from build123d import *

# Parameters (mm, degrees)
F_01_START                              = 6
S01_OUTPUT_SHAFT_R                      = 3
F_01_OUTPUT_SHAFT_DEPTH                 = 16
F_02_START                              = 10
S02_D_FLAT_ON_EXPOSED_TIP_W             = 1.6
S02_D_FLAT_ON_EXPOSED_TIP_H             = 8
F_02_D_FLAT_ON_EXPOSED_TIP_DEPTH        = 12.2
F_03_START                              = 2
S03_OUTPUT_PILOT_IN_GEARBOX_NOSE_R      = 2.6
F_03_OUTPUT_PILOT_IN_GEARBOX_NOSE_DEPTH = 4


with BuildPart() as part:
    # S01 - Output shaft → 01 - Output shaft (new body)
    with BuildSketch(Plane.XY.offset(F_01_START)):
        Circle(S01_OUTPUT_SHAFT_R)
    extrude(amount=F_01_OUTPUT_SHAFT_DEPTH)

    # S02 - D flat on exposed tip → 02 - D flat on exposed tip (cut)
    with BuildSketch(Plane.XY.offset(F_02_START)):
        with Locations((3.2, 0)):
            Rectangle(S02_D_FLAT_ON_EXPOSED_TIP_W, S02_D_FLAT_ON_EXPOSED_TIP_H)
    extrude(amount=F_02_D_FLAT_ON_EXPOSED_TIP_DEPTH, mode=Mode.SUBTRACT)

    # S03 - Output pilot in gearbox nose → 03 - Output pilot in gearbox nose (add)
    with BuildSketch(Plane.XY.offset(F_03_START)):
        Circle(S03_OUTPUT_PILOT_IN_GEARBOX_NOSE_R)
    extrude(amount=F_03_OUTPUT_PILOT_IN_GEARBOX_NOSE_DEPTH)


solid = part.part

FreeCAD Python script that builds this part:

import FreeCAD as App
import Part
import Sketcher
Q = App.Units.Quantity

doc = App.newDocument("Part")
body = doc.addObject("PartDesign::Body", "Body")

sketch1 = body.newObject("Sketcher::SketchObject", "Sketch")
sketch1.AttachmentSupport = (doc.getObject("XY_Plane"), [""])
sketch1.MapMode = "FlatFace"
sketch1.AttachmentOffset = App.Placement(App.Vector(0, 0, 6), App.Rotation())
sketch1.addGeometry(Part.Circle(App.Vector(0, 0, 0), App.Vector(0, 0, 1), 3), False)
sketch1.addConstraint(Sketcher.Constraint("Coincident", 0, 3, -1, 1))
sketch1.addConstraint(Sketcher.Constraint("Diameter", 0, Q("6 mm")))
pad1 = body.newObject("PartDesign::Pad", "Pad")
pad1.Profile = sketch1
pad1.Length = 16

sketch2 = body.newObject("Sketcher::SketchObject", "Sketch001")
sketch2.AttachmentSupport = (doc.getObject("XY_Plane"), [""])
sketch2.MapMode = "FlatFace"
sketch2.AttachmentOffset = App.Placement(App.Vector(0, 0, 10), App.Rotation())
sketch2.addGeometry(Part.LineSegment(App.Vector(2.4, 4, 0), App.Vector(2.4, -4, 0)), False)
sketch2.addGeometry(Part.LineSegment(App.Vector(2.4, -4, 0), App.Vector(4, -4, 0)), False)
sketch2.addGeometry(Part.LineSegment(App.Vector(4, -4, 0), App.Vector(4, 4, 0)), False)
sketch2.addGeometry(Part.LineSegment(App.Vector(4, 4, 0), App.Vector(2.4, 4, 0)), False)
sketch2.addConstraint(Sketcher.Constraint("Coincident", 0, 2, 1, 1))
sketch2.addConstraint(Sketcher.Constraint("Coincident", 1, 2, 2, 1))
sketch2.addConstraint(Sketcher.Constraint("Coincident", 2, 2, 3, 1))
sketch2.addConstraint(Sketcher.Constraint("Coincident", 3, 2, 0, 1))
sketch2.addConstraint(Sketcher.Constraint("Vertical", 0))
sketch2.addConstraint(Sketcher.Constraint("Horizontal", 1))
sketch2.addConstraint(Sketcher.Constraint("Vertical", 2))
sketch2.addConstraint(Sketcher.Constraint("Horizontal", 3))
sketch2.addConstraint(Sketcher.Constraint("DistanceY", 0, 2, 0, 1, Q("8 mm")))
sketch2.addConstraint(Sketcher.Constraint("DistanceX", 1, 1, 1, 2, Q("1.6 mm")))
sketch2.addConstraint(Sketcher.Constraint("DistanceY", 0, 2, -1, 1, Q("4 mm")))
sketch2.addConstraint(Sketcher.Constraint("DistanceX", -1, 1, 1, 2, Q("4 mm")))
pocket1 = body.newObject("PartDesign::Pocket", "Pocket")
pocket1.Profile = sketch2
pocket1.Length = 12.2
pocket1.Reversed = True

sketch3 = body.newObject("Sketcher::SketchObject", "Sketch002")
sketch3.AttachmentSupport = (doc.getObject("XY_Plane"), [""])
sketch3.MapMode = "FlatFace"
sketch3.AttachmentOffset = App.Placement(App.Vector(0, 0, 2), App.Rotation())
sketch3.addGeometry(Part.Circle(App.Vector(0, 0, 0), App.Vector(0, 0, 1), 2.6), False)
sketch3.addConstraint(Sketcher.Constraint("Coincident", 0, 3, -1, 1))
sketch3.addConstraint(Sketcher.Constraint("Diameter", 0, Q("5.2 mm")))
pad2 = body.newObject("PartDesign::Pad", "Pad001")
pad2.Profile = sketch3
pad2.Length = 4

doc.recompute()
